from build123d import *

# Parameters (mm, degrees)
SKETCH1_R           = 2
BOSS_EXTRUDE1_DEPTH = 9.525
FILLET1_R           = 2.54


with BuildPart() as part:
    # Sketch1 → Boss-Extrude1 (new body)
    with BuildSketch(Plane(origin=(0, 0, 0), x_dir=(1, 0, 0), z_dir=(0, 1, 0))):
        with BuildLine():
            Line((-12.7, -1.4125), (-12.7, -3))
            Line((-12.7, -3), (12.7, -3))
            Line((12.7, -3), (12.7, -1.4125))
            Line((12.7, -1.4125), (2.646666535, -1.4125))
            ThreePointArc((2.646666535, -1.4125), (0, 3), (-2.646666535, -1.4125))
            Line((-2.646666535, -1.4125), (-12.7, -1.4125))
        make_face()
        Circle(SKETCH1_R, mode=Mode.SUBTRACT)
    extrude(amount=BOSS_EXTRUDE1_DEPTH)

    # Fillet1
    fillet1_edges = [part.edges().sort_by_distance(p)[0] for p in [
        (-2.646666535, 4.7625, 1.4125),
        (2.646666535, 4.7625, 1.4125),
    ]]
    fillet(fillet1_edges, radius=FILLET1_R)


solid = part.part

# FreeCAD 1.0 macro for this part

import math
import FreeCAD as App
import Part
import Sketcher

V = App.Vector
Q = App.Units.Quantity


def edges_at(feature, points):
    """Names of the edges that pass closest to the given points."""
    edges = feature.Shape.Edges
    near = lambda p: min(range(len(edges)), key=lambda i: edges[i].distToShape(Part.Vertex(*p))[0])
    return sorted({f"Edge{near(p) + 1}" for p in points})

doc = App.newDocument("Part")
body = doc.addObject("PartDesign::Body", "Body")

# Sketch on XZ plane
sketch1 = body.newObject("Sketcher::SketchObject", "Sketch")
sketch1.AttachmentSupport = (doc.getObject("XZ_Plane"), [""])
sketch1.MapMode = "FlatFace"
sketch1.addGeometry(Part.LineSegment(V(-12.7, 1.4125, 0), V(-12.7, 3, 0)), False)
sketch1.addGeometry(Part.LineSegment(V(-12.7, 3, 0), V(12.7, 3, 0)), False)
sketch1.addGeometry(Part.LineSegment(V(12.7, 3, 0), V(12.7, 1.4125, 0)), False)
sketch1.addGeometry(Part.LineSegment(V(12.7, 1.4125, 0), V(2.646667, 1.4125, 0)), False)
sketch1.addGeometry(Part.ArcOfCircle(Part.Circle(V(0, 0, 0), V(0, 0, 1), 3), math.radians(151.911596), math.radians(388.088404)), False)
sketch1.addGeometry(Part.LineSegment(V(-2.646667, 1.4125, 0), V(-12.7, 1.4125, 0)), False)
sketch1.addGeometry(Part.Circle(V(0, 0, 0), V(0, 0, 1), 2), False)
sketch1.addConstraint(Sketcher.Constraint("Coincident", 0, 2, 1, 1))
sketch1.addConstraint(Sketcher.Constraint("Coincident", 1, 2, 2, 1))
sketch1.addConstraint(Sketcher.Constraint("Coincident", 2, 2, 3, 1))
sketch1.addConstraint(Sketcher.Constraint("Coincident", 3, 2, 4, 2))
sketch1.addConstraint(Sketcher.Constraint("Coincident", 4, 1, 5, 1))
sketch1.addConstraint(Sketcher.Constraint("Coincident", 5, 2, 0, 1))
sketch1.addConstraint(Sketcher.Constraint("Vertical", 0))
sketch1.addConstraint(Sketcher.Constraint("Horizontal", 1))
sketch1.addConstraint(Sketcher.Constraint("Vertical", 2))
sketch1.addConstraint(Sketcher.Constraint("Horizontal", 3))
sketch1.addConstraint(Sketcher.Constraint("Horizontal", 5))
sketch1.addConstraint(Sketcher.Constraint("Coincident", 4, 3, -1, 1))
sketch1.addConstraint(Sketcher.Constraint("Coincident", 6, 3, -1, 1))
sketch1.addConstraint(Sketcher.Constraint("Symmetric", 2, 2, 5, 2, -2))
sketch1.addConstraint(Sketcher.Constraint("DistanceX", 1, 1, 1, 2, Q("1 in")))
sketch1.addConstraint(Sketcher.Constraint("Diameter", 6, Q("4 mm")))
sketch1.addConstraint(Sketcher.Constraint("DistanceY", 0, 1, 0, 2, Q("0.0625 in")))
sketch1.addConstraint(Sketcher.Constraint("Radius", 4, Q("3 mm")))
sketch1.addConstraint(Sketcher.Constraint("DistanceY", -1, 1, 0, 2, Q("3 mm")))
pad1 = body.newObject("PartDesign::Pad", "Pad")
pad1.Profile = sketch1
pad1.Length = Q("0.375 in")
pad1.Reversed = True
doc.recompute()

fillet = body.newObject("PartDesign::Fillet", "Fillet")
fillet.Base = (pad1, edges_at(pad1, [(-2.647, 4.763, 1.413), (2.647, 4.763, 1.413)]))
fillet.Radius = Q("0.1 in")

doc.recompute()
